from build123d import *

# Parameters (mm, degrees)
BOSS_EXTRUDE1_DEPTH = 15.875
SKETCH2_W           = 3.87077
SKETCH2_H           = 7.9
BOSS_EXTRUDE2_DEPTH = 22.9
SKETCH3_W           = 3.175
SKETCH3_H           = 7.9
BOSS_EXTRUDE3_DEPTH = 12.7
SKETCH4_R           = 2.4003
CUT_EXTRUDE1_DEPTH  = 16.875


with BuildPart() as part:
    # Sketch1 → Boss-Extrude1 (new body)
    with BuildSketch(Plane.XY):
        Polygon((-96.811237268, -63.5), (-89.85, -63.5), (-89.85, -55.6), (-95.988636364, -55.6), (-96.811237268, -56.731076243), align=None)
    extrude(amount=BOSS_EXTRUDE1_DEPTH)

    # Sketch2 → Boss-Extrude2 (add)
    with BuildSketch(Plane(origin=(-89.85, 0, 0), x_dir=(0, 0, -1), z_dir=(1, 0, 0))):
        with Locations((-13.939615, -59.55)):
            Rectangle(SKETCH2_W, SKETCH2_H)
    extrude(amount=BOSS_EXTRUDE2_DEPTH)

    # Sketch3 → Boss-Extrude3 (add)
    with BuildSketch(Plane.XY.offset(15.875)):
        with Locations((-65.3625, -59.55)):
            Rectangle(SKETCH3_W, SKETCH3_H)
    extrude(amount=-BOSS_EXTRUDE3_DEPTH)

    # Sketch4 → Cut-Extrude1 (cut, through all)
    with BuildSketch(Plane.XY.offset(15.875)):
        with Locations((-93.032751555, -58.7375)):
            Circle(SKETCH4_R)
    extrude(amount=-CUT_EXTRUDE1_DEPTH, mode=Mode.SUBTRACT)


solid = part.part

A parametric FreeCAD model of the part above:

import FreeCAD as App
import Part
import Sketcher
Q = App.Units.Quantity


def add_polygon(sketch, points):
    """Adds a closed chain of lines whose ends are joined by coincident constraints."""
    first, n = sketch.GeometryCount, len(points)
    for a, b in zip(points, points[1:] + points[:1]):
        sketch.addGeometry(Part.LineSegment(App.Vector(*a, 0), App.Vector(*b, 0)), False)
    for i in range(n):
        sketch.addConstraint(Sketcher.Constraint("Coincident", first + i, 2, first + (i + 1) % n, 1))

doc = App.newDocument("Part")
body = doc.addObject("PartDesign::Body", "Body")

# Sketch on XY plane
sketch1 = body.newObject("Sketcher::SketchObject", "Sketch")
sketch1.AttachmentSupport = (doc.getObject("XY_Plane"), [""])
sketch1.MapMode = "FlatFace"
add_polygon(sketch1, [(-96.8, -63.5), (-89.8, -63.5), (-89.8, -55.6), (-96, -55.6), (-96.8, -56.7)])  # lines 0-4
sketch1.addConstraint(Sketcher.Constraint("Horizontal", 0))
sketch1.addConstraint(Sketcher.Constraint("Vertical", 1))
sketch1.addConstraint(Sketcher.Constraint("Horizontal", 2))
sketch1.addConstraint(Sketcher.Constraint("Vertical", 4))
sketch1.addConstraint(Sketcher.Constraint("DistanceY", 0, 2, -1, 1, Q("2.5 in")))
sketch1.addConstraint(Sketcher.Constraint("DistanceY", 1, 1, 1, 2, 7.9))
sketch1.addConstraint(Sketcher.Constraint("DistanceX", 0, 2, -1, 1, 89.85))
sketch1.addConstraint(Sketcher.Constraint("DistanceX", 3, 2, 2, 2, 0.822601))
sketch1.addConstraint(Sketcher.Constraint("DistanceX", 0, 1, 0, 2, 6.961237))
sketch1.addConstraint(Sketcher.Constraint("DistanceY", 4, 2, 4, 1, 6.768924))
pad1 = body.newObject("PartDesign::Pad", "Pad")
pad1.Profile = sketch1
pad1.Length = Q("0.625 in")

# Sketch on YZ plane
sketch2 = body.newObject("Sketcher::SketchObject", "Sketch001")
sketch2.AttachmentSupport = (doc.getObject("YZ_Plane"), [""])
sketch2.MapMode = "FlatFace"
sketch2.AttachmentOffset = App.Placement(App.Vector(0, 0, -89.85), App.Rotation())
add_polygon(sketch2, [(-55.6, 15.9), (-63.5, 15.9), (-63.5, 12), (-55.6, 12)])  # lines 0-3
sketch2.addConstraint(Sketcher.Constraint("Horizontal", 0))
sketch2.addConstraint(Sketcher.Constraint("Vertical", 1))
sketch2.addConstraint(Sketcher.Constraint("Horizontal", 2))
sketch2.addConstraint(Sketcher.Constraint("Vertical", 3))
sketch2.addConstraint(Sketcher.Constraint("DistanceX", 0, 2, -1, 1, Q("2.5 in")))
sketch2.addConstraint(Sketcher.Constraint("DistanceY", -1, 1, 0, 2, Q("0.625 in")))
sketch2.addConstraint(Sketcher.Constraint("DistanceX", 0, 2, 0, 1, 7.9))
sketch2.addConstraint(Sketcher.Constraint("DistanceY", 1, 2, 1, 1, 3.87077))
pad2 = body.newObject("PartDesign::Pad", "Pad001")
pad2.Profile = sketch2
pad2.Length = 22.9

# Sketch on XY plane
sketch3 = body.newObject("Sketcher::SketchObject", "Sketch002")
sketch3.AttachmentSupport = (doc.getObject("XY_Plane"), [""])
sketch3.MapMode = "FlatFace"
sketch3.AttachmentOffset = App.Placement(App.Vector(0, 0, 0.625 * 25.4), App.Rotation())
add_polygon(sketch3, [(-67, -55.6), (-67, -63.5), (-63.8, -63.5), (-63.8, -55.6)])  # lines 0-3
sketch3.addConstraint(Sketcher.Constraint("Vertical", 0))
sketch3.addConstraint(Sketcher.Constraint("Horizontal", 1))
sketch3.addConstraint(Sketcher.Constraint("Vertical", 2))
sketch3.addConstraint(Sketcher.Constraint("Horizontal", 3))
sketch3.addConstraint(Sketcher.Constraint("DistanceY", 0, 2, -1, 1, Q("2.5 in")))
sketch3.addConstraint(Sketcher.Constraint("DistanceX", 1, 1, 1, 2, Q("0.125 in")))
sketch3.addConstraint(Sketcher.Constraint("DistanceY", 0, 2, 0, 1, 7.9))
sketch3.addConstraint(Sketcher.Constraint("DistanceX", 0, 2, -1, 1, 66.95))
pad3 = body.newObject("PartDesign::Pad", "Pad002")
pad3.Profile = sketch3
pad3.Length = Q("0.5 in")
pad3.Reversed = True

# Sketch on XY plane
sketch4 = body.newObject("Sketcher::SketchObject", "Sketch003")
sketch4.AttachmentSupport = (doc.getObject("XY_Plane"), [""])
sketch4.MapMode = "FlatFace"
sketch4.AttachmentOffset = App.Placement(App.Vector(0, 0, 0.625 * 25.4), App.Rotation())
sketch4.addGeometry(Part.Circle(App.Vector(-93, -58.7, 0), App.Vector(0, 0, 1), 2.4), False)
sketch4.addConstraint(Sketcher.Constraint("Diameter", 0, Q("0.189 in")))
sketch4.addConstraint(Sketcher.Constraint("DistanceY", 0, 3, -1, 1, Q("2.3125 in")))
sketch4.addConstraint(Sketcher.Constraint("DistanceX", 0, 3, -1, 1, 93.032752))
pocket1 = body.newObject("PartDesign::Pocket", "Pocket")
pocket1.Profile = sketch4
pocket1.Type = "ThroughAll"

doc.recompute()
